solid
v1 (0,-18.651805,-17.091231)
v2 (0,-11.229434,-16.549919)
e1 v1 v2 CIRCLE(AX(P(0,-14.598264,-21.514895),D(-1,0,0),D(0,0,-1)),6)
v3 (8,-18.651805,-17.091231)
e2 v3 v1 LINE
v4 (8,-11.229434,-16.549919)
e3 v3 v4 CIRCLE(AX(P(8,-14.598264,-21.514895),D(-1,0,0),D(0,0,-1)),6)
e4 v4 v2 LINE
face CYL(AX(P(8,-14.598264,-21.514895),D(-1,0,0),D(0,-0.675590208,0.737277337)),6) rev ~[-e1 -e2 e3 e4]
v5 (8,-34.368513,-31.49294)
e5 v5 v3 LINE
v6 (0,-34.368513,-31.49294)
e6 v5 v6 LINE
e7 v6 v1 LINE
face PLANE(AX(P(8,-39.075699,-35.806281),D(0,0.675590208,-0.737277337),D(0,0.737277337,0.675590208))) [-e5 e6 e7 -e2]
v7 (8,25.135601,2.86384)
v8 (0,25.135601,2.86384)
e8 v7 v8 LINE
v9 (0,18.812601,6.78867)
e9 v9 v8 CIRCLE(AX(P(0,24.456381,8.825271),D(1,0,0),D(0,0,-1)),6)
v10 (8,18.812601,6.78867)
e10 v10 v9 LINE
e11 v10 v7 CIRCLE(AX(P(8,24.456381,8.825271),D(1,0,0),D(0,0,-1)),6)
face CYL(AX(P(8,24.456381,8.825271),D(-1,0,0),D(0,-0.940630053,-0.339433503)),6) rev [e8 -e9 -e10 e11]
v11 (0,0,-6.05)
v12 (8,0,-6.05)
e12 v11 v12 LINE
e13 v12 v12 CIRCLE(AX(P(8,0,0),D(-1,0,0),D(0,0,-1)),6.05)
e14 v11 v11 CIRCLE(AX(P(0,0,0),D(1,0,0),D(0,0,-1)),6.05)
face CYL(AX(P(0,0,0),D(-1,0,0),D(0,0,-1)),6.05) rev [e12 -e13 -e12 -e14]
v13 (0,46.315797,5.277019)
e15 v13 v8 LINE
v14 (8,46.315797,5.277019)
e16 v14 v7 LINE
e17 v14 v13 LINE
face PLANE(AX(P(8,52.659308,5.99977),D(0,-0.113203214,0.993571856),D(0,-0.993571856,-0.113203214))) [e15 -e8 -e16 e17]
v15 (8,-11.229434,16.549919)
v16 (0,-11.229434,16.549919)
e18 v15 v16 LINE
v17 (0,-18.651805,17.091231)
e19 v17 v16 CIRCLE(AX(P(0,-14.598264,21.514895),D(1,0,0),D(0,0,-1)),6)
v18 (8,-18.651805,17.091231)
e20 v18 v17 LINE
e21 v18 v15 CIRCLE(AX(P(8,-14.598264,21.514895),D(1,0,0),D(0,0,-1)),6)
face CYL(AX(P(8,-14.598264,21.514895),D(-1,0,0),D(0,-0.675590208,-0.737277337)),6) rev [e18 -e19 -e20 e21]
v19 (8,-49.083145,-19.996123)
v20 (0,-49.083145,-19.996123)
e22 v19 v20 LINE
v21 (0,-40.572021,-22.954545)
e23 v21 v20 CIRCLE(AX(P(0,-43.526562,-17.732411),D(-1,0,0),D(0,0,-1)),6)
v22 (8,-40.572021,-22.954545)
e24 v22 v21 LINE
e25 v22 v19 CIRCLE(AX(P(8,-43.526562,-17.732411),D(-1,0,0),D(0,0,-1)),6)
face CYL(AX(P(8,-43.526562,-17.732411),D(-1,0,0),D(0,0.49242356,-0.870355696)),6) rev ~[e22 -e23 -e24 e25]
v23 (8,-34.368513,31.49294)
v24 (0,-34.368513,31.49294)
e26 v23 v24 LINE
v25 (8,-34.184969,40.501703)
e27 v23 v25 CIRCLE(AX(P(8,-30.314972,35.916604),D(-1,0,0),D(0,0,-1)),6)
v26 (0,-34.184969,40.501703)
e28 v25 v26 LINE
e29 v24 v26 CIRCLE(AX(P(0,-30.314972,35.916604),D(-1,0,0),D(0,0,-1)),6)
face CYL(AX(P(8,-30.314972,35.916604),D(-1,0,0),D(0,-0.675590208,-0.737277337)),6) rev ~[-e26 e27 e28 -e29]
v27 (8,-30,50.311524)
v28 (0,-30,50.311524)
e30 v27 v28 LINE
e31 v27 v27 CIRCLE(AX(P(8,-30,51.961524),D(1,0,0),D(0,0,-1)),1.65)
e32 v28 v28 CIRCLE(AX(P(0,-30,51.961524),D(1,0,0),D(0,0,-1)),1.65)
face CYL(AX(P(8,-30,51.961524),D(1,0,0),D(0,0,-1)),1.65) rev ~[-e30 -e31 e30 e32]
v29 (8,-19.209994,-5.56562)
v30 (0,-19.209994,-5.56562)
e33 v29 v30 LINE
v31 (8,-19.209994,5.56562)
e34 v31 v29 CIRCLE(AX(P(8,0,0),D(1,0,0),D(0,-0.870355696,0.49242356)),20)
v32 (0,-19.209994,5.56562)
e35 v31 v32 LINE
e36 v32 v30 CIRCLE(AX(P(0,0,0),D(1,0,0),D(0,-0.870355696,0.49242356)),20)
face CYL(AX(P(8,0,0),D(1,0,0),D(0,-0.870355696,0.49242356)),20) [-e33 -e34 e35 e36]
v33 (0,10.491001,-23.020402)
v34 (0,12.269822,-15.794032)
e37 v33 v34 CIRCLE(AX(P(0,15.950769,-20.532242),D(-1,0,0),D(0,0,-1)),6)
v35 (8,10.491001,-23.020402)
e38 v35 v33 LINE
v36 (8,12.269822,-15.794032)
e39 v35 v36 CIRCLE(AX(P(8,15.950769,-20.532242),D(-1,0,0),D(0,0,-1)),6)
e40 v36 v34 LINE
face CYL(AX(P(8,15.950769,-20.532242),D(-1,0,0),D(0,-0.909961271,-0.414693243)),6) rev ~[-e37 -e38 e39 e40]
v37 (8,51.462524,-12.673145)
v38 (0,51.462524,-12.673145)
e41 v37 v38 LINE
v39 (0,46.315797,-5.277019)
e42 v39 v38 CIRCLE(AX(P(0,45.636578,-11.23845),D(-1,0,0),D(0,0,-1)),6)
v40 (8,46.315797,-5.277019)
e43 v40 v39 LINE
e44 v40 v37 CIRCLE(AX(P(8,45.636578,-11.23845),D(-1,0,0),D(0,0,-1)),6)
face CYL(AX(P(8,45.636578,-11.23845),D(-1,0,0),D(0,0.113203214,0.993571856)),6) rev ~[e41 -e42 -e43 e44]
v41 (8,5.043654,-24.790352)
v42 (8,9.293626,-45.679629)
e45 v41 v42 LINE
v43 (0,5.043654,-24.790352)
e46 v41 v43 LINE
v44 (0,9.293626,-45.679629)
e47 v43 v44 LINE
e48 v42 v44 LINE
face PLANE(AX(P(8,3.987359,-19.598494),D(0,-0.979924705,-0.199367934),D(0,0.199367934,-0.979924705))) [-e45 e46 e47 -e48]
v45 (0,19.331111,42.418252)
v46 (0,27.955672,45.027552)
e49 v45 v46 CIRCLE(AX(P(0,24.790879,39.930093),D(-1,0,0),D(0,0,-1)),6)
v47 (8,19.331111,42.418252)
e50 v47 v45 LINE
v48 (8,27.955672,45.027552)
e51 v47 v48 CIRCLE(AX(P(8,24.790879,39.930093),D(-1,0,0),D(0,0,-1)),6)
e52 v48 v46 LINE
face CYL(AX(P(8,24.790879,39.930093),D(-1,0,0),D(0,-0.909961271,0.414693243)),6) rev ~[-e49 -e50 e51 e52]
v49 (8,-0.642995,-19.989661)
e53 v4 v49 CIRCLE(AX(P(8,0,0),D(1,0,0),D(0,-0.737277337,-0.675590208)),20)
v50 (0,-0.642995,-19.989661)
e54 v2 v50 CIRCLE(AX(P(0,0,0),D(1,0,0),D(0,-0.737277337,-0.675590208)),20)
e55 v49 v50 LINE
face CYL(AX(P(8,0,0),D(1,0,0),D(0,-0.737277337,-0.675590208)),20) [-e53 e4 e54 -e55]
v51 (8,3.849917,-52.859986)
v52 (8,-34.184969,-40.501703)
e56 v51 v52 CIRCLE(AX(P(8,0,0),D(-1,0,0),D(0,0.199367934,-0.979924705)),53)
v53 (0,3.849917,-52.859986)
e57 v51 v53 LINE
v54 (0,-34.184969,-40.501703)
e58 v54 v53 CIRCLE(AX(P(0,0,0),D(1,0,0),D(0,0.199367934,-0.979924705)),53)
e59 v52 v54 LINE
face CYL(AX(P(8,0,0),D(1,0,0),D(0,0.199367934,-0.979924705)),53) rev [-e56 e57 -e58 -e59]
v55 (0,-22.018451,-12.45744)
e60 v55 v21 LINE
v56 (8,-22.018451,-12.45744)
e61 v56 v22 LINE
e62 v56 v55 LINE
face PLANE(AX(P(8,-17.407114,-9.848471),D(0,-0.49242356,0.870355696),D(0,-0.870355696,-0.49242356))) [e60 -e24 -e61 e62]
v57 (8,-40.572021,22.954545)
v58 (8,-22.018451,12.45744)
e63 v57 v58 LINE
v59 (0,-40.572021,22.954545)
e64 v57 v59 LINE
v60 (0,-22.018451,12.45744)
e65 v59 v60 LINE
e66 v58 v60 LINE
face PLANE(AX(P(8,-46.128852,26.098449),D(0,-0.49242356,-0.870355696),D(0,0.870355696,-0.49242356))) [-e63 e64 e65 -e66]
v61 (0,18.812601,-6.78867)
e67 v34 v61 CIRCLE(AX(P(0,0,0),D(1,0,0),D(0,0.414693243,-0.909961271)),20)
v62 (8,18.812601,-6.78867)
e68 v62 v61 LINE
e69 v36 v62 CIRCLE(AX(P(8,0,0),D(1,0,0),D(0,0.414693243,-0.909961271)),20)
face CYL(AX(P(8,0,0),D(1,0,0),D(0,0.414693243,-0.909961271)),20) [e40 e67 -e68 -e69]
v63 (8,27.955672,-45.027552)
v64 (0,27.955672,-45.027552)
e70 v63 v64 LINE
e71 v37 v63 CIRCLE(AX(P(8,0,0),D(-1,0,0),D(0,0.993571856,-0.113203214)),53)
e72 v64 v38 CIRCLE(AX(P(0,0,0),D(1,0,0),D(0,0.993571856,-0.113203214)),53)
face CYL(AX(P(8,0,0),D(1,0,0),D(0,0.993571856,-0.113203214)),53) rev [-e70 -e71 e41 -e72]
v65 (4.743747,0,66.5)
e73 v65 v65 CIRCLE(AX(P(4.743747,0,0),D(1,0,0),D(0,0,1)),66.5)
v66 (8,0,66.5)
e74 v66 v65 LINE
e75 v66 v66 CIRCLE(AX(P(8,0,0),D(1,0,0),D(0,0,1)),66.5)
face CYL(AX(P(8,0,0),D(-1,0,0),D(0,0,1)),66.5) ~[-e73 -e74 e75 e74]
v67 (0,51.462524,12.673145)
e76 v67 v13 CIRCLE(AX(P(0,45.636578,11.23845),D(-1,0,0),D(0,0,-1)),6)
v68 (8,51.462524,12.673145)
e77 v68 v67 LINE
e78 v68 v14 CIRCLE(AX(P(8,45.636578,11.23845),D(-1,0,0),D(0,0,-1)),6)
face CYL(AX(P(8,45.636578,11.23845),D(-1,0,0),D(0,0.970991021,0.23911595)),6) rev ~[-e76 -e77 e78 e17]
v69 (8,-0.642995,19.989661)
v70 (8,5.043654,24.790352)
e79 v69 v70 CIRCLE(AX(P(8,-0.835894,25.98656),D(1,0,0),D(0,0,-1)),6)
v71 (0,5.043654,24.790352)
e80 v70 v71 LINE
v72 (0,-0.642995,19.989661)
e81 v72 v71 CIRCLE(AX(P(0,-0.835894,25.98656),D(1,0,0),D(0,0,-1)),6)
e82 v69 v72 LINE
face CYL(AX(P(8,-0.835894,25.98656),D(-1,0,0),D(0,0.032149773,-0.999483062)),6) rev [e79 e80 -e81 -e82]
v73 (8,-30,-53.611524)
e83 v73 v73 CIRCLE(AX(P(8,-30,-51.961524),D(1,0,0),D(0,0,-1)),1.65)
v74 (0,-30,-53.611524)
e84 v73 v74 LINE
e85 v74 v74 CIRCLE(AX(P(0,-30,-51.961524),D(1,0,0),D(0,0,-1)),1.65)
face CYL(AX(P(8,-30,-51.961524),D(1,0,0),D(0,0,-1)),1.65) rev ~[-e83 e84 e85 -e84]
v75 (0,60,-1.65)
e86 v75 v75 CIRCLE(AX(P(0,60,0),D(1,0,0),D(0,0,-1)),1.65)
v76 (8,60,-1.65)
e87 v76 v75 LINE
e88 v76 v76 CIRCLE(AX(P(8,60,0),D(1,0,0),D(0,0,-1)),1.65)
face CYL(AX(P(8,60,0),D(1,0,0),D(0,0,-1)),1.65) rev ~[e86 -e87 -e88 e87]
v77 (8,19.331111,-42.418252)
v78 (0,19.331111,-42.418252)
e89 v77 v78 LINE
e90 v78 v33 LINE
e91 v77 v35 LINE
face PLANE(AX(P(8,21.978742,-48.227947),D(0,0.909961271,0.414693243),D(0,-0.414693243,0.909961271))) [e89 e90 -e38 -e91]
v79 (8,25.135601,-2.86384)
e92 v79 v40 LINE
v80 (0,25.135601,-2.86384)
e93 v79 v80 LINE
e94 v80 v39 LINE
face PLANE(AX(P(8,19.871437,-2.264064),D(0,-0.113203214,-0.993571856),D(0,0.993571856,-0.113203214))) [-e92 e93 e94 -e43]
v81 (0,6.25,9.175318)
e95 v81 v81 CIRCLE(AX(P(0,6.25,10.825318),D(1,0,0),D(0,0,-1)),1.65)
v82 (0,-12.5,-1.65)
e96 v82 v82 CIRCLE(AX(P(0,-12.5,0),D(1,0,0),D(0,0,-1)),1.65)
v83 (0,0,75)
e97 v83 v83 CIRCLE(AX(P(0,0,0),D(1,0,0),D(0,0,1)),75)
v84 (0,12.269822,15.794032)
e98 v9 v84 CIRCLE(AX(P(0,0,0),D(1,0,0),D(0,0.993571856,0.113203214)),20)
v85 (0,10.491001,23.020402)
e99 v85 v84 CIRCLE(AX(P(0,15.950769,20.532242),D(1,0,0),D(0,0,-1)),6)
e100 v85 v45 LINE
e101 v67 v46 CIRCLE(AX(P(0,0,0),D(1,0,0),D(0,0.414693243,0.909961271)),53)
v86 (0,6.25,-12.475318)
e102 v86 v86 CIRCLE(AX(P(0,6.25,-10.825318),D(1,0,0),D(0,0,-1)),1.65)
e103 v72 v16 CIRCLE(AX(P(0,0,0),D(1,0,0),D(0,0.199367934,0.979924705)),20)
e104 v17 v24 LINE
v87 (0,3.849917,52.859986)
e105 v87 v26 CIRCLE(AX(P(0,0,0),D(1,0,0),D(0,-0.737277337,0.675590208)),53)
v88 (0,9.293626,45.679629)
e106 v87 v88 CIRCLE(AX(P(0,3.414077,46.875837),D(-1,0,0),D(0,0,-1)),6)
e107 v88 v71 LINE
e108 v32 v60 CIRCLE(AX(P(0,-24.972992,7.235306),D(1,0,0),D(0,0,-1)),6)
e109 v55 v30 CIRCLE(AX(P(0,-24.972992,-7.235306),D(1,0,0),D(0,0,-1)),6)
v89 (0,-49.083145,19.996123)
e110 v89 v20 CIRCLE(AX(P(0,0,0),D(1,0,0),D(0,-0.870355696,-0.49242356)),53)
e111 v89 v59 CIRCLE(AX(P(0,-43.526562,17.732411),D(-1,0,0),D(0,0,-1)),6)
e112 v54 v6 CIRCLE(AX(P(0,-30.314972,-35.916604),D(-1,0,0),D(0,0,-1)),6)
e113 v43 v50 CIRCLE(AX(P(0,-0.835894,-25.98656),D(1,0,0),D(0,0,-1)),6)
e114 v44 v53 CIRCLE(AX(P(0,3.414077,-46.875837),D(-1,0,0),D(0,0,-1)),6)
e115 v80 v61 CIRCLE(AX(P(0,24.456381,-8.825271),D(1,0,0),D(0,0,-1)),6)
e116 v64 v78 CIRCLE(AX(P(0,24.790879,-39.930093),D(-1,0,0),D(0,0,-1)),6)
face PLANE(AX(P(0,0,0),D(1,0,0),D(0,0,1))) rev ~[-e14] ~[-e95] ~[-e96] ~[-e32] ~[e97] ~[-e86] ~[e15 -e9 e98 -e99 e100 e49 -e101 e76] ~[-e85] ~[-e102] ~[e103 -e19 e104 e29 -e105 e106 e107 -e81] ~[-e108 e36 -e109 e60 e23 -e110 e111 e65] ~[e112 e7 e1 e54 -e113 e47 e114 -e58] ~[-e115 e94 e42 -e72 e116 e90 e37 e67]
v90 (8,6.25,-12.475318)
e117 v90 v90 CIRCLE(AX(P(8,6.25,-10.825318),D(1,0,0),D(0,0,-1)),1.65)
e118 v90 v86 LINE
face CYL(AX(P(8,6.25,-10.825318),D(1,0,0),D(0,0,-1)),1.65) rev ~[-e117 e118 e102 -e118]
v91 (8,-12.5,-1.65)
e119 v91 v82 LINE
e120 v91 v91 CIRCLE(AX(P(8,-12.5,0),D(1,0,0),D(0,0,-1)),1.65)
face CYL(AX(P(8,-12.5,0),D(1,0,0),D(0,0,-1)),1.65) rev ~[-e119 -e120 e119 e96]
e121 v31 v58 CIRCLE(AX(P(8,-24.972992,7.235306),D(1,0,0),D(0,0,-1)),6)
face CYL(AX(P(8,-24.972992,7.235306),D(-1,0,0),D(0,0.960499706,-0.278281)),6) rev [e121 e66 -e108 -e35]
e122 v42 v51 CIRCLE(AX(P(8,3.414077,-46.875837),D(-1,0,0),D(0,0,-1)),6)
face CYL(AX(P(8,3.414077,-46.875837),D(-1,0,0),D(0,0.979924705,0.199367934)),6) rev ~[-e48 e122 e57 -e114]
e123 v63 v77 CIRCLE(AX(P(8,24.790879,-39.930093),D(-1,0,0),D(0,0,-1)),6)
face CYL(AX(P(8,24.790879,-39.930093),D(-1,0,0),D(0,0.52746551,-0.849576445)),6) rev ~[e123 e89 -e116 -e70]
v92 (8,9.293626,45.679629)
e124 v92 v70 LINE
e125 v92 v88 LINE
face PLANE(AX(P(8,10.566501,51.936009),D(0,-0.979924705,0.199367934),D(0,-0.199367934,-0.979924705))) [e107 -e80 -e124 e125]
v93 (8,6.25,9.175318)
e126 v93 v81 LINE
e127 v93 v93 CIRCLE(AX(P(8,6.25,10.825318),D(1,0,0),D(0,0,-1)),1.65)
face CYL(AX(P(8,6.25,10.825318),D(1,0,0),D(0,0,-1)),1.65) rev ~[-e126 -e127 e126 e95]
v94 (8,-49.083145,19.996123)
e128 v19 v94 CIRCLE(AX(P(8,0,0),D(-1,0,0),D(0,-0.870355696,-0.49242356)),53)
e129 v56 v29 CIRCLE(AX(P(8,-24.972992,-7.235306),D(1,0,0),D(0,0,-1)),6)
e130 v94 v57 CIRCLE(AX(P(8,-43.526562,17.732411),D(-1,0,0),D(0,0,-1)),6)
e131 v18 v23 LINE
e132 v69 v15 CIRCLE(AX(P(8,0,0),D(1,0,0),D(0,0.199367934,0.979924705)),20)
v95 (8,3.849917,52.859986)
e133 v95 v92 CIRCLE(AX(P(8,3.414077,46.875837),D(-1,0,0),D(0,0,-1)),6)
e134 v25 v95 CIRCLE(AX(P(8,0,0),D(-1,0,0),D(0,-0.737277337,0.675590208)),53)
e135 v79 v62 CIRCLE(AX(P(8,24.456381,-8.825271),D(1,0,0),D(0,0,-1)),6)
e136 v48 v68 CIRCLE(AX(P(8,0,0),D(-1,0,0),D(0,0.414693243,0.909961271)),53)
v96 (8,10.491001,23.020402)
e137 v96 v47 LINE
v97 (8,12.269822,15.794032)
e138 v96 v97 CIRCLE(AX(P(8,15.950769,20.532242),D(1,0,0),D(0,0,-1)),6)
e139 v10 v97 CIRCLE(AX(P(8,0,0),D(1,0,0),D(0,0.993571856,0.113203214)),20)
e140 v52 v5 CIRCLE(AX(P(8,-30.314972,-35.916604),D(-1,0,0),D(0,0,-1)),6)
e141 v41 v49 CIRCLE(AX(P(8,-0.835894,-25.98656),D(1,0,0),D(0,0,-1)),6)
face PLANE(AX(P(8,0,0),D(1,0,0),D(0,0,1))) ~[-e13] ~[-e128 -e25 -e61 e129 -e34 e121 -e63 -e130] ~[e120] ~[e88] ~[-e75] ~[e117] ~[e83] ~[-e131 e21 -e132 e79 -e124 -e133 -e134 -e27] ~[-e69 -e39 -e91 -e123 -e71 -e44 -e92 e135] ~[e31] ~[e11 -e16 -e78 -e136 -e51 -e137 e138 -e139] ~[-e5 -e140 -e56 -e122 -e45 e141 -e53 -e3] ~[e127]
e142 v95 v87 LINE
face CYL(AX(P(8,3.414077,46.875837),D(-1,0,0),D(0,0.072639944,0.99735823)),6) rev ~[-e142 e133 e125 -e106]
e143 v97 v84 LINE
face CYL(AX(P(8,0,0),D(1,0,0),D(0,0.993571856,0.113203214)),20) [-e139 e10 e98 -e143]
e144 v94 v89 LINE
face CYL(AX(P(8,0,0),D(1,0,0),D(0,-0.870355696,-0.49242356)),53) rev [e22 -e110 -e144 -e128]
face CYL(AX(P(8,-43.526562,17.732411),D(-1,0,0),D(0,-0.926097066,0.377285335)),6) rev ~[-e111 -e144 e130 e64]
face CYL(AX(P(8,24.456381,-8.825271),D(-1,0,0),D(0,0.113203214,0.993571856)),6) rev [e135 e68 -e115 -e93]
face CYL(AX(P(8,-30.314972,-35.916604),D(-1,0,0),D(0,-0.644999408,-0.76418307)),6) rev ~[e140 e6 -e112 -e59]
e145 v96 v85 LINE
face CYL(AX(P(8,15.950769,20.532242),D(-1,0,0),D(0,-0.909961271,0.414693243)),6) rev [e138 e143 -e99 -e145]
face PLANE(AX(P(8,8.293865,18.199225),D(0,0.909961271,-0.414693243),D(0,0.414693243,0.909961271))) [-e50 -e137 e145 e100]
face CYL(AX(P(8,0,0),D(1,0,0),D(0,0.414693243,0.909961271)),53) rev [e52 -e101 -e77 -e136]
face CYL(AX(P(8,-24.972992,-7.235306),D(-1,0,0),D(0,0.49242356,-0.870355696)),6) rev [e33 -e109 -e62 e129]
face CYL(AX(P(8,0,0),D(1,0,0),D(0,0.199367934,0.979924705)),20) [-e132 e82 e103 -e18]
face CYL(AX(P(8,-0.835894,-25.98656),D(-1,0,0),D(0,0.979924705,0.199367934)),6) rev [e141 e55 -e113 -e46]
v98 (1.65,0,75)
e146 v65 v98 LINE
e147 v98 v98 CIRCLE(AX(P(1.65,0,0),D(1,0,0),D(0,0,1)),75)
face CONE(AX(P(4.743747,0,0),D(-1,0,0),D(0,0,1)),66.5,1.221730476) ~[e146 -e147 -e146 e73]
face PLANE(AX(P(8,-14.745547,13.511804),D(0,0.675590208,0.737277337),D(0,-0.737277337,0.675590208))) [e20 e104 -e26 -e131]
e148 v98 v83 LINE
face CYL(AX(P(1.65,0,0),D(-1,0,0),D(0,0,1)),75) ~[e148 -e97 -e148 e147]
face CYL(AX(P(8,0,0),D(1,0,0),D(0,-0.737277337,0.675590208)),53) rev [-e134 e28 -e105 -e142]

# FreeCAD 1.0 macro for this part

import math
import FreeCAD as App
import Part
import Sketcher

V = App.Vector
Q = App.Units.Quantity


def edges_at(feature, points):
    """Names of the edges that pass closest to the given points."""
    edges = feature.Shape.Edges
    near = lambda p: min(range(len(edges)), key=lambda i: edges[i].distToShape(Part.Vertex(*p))[0])
    return sorted({f"Edge{near(p) + 1}" for p in points})


def add_polygon(sketch, points):
    """Adds a closed chain of lines whose ends are joined by coincident constraints."""
    first, n = sketch.GeometryCount, len(points)
    for a, b in zip(points, points[1:] + points[:1]):
        sketch.addGeometry(Part.LineSegment(App.Vector(*a, 0), App.Vector(*b, 0)), False)
    for i in range(n):
        sketch.addConstraint(Sketcher.Constraint("Coincident", first + i, 2, first + (i + 1) % n, 1))

doc = App.newDocument("Part")
body = doc.addObject("PartDesign::Body", "Body")

sketch1 = body.newObject("Sketcher::SketchObject", "Sketch")
sketch1.AttachmentSupport = (doc.getObject("XY_Plane"), [""])
sketch1.MapMode = "FlatFace"
add_polygon(sketch1, [(0, 0), (8, 0), (8, 66.5), (4.7, 66.5), (1.6, 75), (0, 75)])
sketch1.addConstraint(Sketcher.Constraint("Horizontal", 0))
sketch1.addConstraint(Sketcher.Constraint("Vertical", 1))
sketch1.addConstraint(Sketcher.Constraint("Horizontal", 2))
sketch1.addConstraint(Sketcher.Constraint("Horizontal", 4))
sketch1.addConstraint(Sketcher.Constraint("Vertical", 5))
sketch1.addConstraint(Sketcher.Constraint("Coincident", 5, 2, -1, 1))
sketch1.addConstraint(Sketcher.Constraint("DistanceX", 0, 1, 0, 2, Q("8 mm")))
sketch1.addConstraint(Sketcher.Constraint("DistanceY", 5, 2, 5, 1, Q("75 mm")))
sketch1.addConstraint(Sketcher.Constraint("Angle", 3, Q("110 deg")))
sketch1.addConstraint(Sketcher.Constraint("DistanceY", 1, 1, 1, 2, Q("66.5 mm")))
sketch1.addConstraint(Sketcher.Constraint("DistanceX", 4, 2, 4, 1, Q("1.65 mm")))
revolution = body.newObject("PartDesign::Revolution", "Revolution")
revolution.Profile = sketch1
revolution.ReferenceAxis = (sketch1, ["H_Axis"])
revolution.Angle = 360

sketch2 = body.newObject("Sketcher::SketchObject", "Sketch001")
sketch2.AttachmentSupport = (doc.getObject("YZ_Plane"), [""])
sketch2.MapMode = "FlatFace"
sketch2.addGeometry(Part.Circle(V(0, 0, 0), V(0, 0, 1), 6), False)
sketch2.addConstraint(Sketcher.Constraint("Coincident", 0, 3, -1, 1))
sketch2.addConstraint(Sketcher.Constraint("Diameter", 0, Q("12.1 mm")))
pocket1 = body.newObject("PartDesign::Pocket", "Pocket")
pocket1.Profile = sketch2
pocket1.Type = "ThroughAll"
pocket1.Reversed = True

sketch3 = body.newObject("Sketcher::SketchObject", "Sketch002")
sketch3.AttachmentSupport = (doc.getObject("YZ_Plane"), [""])
sketch3.MapMode = "FlatFace"
sketch3.AttachmentOffset = App.Placement(V(0, 0, 8), App.Rotation())
sketch3.addGeometry(Part.Circle(V(60, 0, 0), V(0, 0, 1), 1.6), False)
sketch3.addGeometry(Part.Circle(V(-30, -52, 0), V(0, 0, 1), 1.6), False)
sketch3.addGeometry(Part.Circle(V(-30, 52, 0), V(0, 0, 1), 1.6), False)
sketch3.addGeometry(Part.Circle(V(6.2, -10.8, 0), V(0, 0, 1), 1.6), False)
sketch3.addGeometry(Part.Circle(V(-12.5, 0, 0), V(0, 0, 1), 1.6), False)
sketch3.addGeometry(Part.Circle(V(6.2, 10.8, 0), V(0, 0, 1), 1.6), False)
sketch3.addConstraint(Sketcher.Constraint("Equal", 0, 1))
sketch3.addConstraint(Sketcher.Constraint("Equal", 1, 2))
sketch3.addConstraint(Sketcher.Constraint("Equal", 2, 3))
sketch3.addConstraint(Sketcher.Constraint("Equal", 3, 4))
sketch3.addConstraint(Sketcher.Constraint("Equal", 4, 5))
sketch3.addConstraint(Sketcher.Constraint("Symmetric", 1, 3, 2, 3, -1))
sketch3.addConstraint(Sketcher.Constraint("Symmetric", 3, 3, 5, 3, -1))
sketch3.addConstraint(Sketcher.Constraint("PointOnObject", 0, 3, -1))
sketch3.addConstraint(Sketcher.Constraint("PointOnObject", 4, 3, -1))
sketch3.addConstraint(Sketcher.Constraint("Diameter", 0, Q("3.3 mm")))
sketch3.addConstraint(Sketcher.Constraint("DistanceX", -1, 1, 0, 3, Q("60 mm")))
sketch3.addConstraint(Sketcher.Constraint("DistanceX", 1, 3, -1, 1, Q("30 mm")))
sketch3.addConstraint(Sketcher.Constraint("DistanceX", 4, 3, -1, 1, Q("12.5 mm")))
sketch3.addConstraint(Sketcher.Constraint("DistanceX", -1, 1, 3, 3, Q("6.25 mm")))
sketch3.addConstraint(Sketcher.Constraint("DistanceY", 1, 3, 2, 3, Q("103.923048 mm")))
sketch3.addConstraint(Sketcher.Constraint("DistanceY", 3, 3, 2, 3, Q("62.786842 mm")))
pocket2 = body.newObject("PartDesign::Pocket", "Pocket001")
pocket2.Profile = sketch3
pocket2.Type = "ThroughAll"

sketch4 = body.newObject("Sketcher::SketchObject", "Sketch003")
sketch4.AttachmentSupport = (doc.getObject("YZ_Plane"), [""])
sketch4.MapMode = "FlatFace"
sketch4.AttachmentOffset = App.Placement(V(0, 0, 8), App.Rotation())
sketch4.addGeometry(Part.LineSegment(V(53, -6, 0), V(20, -2, 0)), False)
sketch4.addGeometry(Part.ArcOfCircle(Part.Circle(V(0, 0, 0), V(0, 0, 1), 20), math.radians(-65), math.radians(-7)), False)
sketch4.addGeometry(Part.LineSegment(V(8, -18, 0), V(22, -48, 0)), False)
sketch4.addGeometry(Part.ArcOfCircle(Part.Circle(V(0, 0, 0), V(0, 0, 1), 53), math.radians(-66), math.radians(-6)), False)
sketch4.addConstraint(Sketcher.Constraint("Coincident", 0, 2, 1, 2))
sketch4.addConstraint(Sketcher.Constraint("Coincident", 1, 1, 2, 1))
sketch4.addConstraint(Sketcher.Constraint("Coincident", 2, 2, 3, 1))
sketch4.addConstraint(Sketcher.Constraint("Coincident", 3, 2, 0, 1))
sketch4.addConstraint(Sketcher.Constraint("Coincident", 1, 3, -1, 1))
sketch4.addConstraint(Sketcher.Constraint("Coincident", 3, 3, -1, 1))
sketch4.addConstraint(Sketcher.Constraint("Radius", 1, Q("20 mm")))
sketch4.addConstraint(Sketcher.Constraint("Radius", 3, Q("53 mm")))
sketch4.addConstraint(Sketcher.Constraint("Angle", 0, Q("173.5 deg")))
sketch4.addConstraint(Sketcher.Constraint("Angle", 2, Q("-65.5 deg")))
sketch4.addConstraint(Sketcher.Constraint("DistanceX", -1, 1, 2, 2, Q("21.978742 mm")))
sketch4.addConstraint(Sketcher.Constraint("DistanceX", -1, 1, 3, 2, Q("52.659308 mm")))
pocket3 = body.newObject("PartDesign::Pocket", "Pocket002")
pocket3.Profile = sketch4
pocket3.Type = "ThroughAll"
doc.recompute()

fillet = body.newObject("PartDesign::Fillet", "Fillet")
fillet.Base = (pocket3, edges_at(pocket3, [
    (4, 21.979, -48.228),
    (4, 8.294, -18.199),
    (4, 19.871, -2.264),
    (4, 52.659, -6),
]))
fillet.Radius = 6
doc.recompute()

polarpattern = body.newObject("PartDesign::PolarPattern", "PolarPattern")
polarpattern.Originals = [pocket3]
polarpattern.Axis = (doc.getObject("X_Axis"), [""])
polarpattern.Angle = 360
polarpattern.Occurrences = 5
body.Tip = polarpattern
doc.recompute()

fillet2 = body.newObject("PartDesign::Fillet", "Fillet001")
fillet2.Base = (polarpattern, edges_at(polarpattern, [
    (4, 52.659, 6),
    (4, 19.871, 2.264),
    (4, 8.294, 18.199),
    (4, 21.979, 48.228),
    (4, 10.567, 51.936),
    (4, 3.987, 19.598),
    (4, -14.746, 13.512),
    (4, -39.076, 35.806),
    (4, -46.129, 26.098),
    (4, -17.407, 9.848),
    (4, -17.407, -9.848),
    (4, -46.129, -26.098),
    (4, -39.076, -35.806),
    (4, -14.746, -13.512),
    (4, 3.987, -19.598),
    (4, 10.567, -51.936),
]))
fillet2.Radius = 6

doc.recompute()
